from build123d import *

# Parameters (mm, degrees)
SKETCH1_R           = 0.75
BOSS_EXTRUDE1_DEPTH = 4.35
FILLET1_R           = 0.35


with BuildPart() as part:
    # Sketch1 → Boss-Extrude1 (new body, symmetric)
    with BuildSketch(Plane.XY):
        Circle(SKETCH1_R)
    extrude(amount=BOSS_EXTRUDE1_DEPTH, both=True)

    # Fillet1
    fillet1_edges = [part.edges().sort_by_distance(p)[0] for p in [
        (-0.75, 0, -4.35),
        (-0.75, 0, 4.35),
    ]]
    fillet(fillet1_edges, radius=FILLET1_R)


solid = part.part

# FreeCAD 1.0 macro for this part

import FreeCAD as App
import Part
import Sketcher
from FreeCAD import Vector
Q = App.Units.Quantity


def edges_at(feature, points):
    """Names of the edges that pass closest to the given points."""
    edges = feature.Shape.Edges
    near = lambda p: min(range(len(edges)), key=lambda i: edges[i].distToShape(Part.Vertex(*p))[0])
    return sorted({f"Edge{near(p) + 1}" for p in points})

doc = App.newDocument("Part")
params = doc.addObject("Spreadsheet::Sheet", "Params")
for row, (alias, value) in enumerate([
    ("sketch1_diameter", "1.5 mm"),
    ("pad1_length", "8.7 mm"),
    ("fillet_radius", "0.35 mm"),
], start=1):
    params.set(f"A{row}", alias)
    params.set(f"B{row}", "=" + value)
    params.setAlias(f"B{row}", alias)

body = doc.addObject("PartDesign::Body", "Body")

# Sketch on XY plane
sketch1 = body.newObject("Sketcher::SketchObject", "Sketch")
sketch1.AttachmentSupport = (doc.getObject("XY_Plane"), [""])
sketch1.MapMode = "FlatFace"
sketch1.addGeometry(Part.Circle(Vector(0, 0, 0), Vector(0, 0, 1), 0.8), False)
sketch1.addConstraint([
    Sketcher.Constraint("Coincident", 0, 3, -1, 1),
    Sketcher.Constraint("Diameter", 0, Q("1.5 mm")),
])
sketch1.setExpression("Constraints[1]", "Params.sketch1_diameter")
pad1 = body.newObject("PartDesign::Pad", "Pad")
pad1.Profile = sketch1
pad1.setExpression("Length", "Params.pad1_length")
pad1.Midplane = True
doc.recompute()

fillet = body.newObject("PartDesign::Fillet", "Fillet")
fillet.Base = (pad1, edges_at(pad1, [(-0.75, 0, -4.35), (-0.75, 0, 4.35)]))
fillet.setExpression("Radius", "Params.fillet_radius")

doc.recompute()
